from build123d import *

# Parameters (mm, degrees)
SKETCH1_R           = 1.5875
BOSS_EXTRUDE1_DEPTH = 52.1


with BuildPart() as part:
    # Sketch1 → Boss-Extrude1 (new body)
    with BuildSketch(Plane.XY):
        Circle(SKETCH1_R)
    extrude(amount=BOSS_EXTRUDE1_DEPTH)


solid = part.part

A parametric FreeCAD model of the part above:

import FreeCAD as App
import Part
import Sketcher

V = App.Vector

doc = App.newDocument("Part")
params = doc.addObject("Spreadsheet::Sheet", "Params")
for row, (alias, value) in enumerate([
    ("pad1_length", "52.1 mm"),
], start=1):
    params.set(f"A{row}", alias)
    params.set(f"B{row}", "=" + value)
    params.setAlias(f"B{row}", alias)

body = doc.addObject("PartDesign::Body", "Body")

# Sketch on XY plane
sketch1 = body.newObject("Sketcher::SketchObject", "Sketch")
sketch1.AttachmentSupport = (doc.getObject("XY_Plane"), [""])
sketch1.MapMode = "FlatFace"
sketch1.addGeometry(Part.Circle(V(0, 0, 0), V(0, 0, 1), 1.6), False)
sketch1.addConstraint(Sketcher.Constraint("Coincident", 0, 3, -1, 1))
sketch1.addConstraint(Sketcher.Constraint("Diameter", 0, 3.175))
pad1 = body.newObject("PartDesign::Pad", "Pad")
pad1.Profile = sketch1
pad1.setExpression("Length", "Params.pad1_length")

doc.recompute()
